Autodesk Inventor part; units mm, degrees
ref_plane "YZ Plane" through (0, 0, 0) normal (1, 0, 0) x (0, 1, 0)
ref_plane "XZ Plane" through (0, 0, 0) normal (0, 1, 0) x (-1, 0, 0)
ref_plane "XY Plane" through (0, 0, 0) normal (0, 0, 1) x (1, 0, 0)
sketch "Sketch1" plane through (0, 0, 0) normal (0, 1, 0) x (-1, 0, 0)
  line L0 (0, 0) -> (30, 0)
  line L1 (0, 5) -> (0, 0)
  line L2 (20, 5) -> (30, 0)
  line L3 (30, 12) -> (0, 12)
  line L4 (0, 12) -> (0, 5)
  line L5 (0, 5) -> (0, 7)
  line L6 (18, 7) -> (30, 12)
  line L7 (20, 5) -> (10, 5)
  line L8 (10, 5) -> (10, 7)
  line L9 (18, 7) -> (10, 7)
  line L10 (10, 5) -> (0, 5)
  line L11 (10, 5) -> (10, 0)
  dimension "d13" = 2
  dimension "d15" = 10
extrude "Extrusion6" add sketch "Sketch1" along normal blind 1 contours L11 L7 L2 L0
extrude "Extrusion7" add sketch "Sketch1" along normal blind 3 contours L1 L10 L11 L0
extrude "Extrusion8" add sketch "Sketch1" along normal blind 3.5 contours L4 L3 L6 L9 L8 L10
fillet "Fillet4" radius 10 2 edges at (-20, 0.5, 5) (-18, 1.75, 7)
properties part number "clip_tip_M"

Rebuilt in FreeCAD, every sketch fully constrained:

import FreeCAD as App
import Part
import Sketcher


def edges_at(feature, points):
    """Names of the edges that pass closest to the given points."""
    edges = feature.Shape.Edges
    near = lambda p: min(range(len(edges)), key=lambda i: edges[i].distToShape(Part.Vertex(*p))[0])
    return sorted({f"Edge{near(p) + 1}" for p in points})

doc = App.newDocument("Part")
body = doc.addObject("PartDesign::Body", "Body")

# Sketch on XZ plane
sketch1 = body.newObject("Sketcher::SketchObject", "Sketch")
sketch1.AttachmentSupport = (doc.getObject("XZ_Plane"), [""])
sketch1.MapMode = "FlatFace"
sketch1.addGeometry([
    Part.LineSegment(App.Vector(-10, 5, 0), App.Vector(-10, 0, 0)),
    Part.LineSegment(App.Vector(-10, 0, 0), App.Vector(-30, 0, 0)),
    Part.LineSegment(App.Vector(-30, 0, 0), App.Vector(-20, 5, 0)),
    Part.LineSegment(App.Vector(-20, 5, 0), App.Vector(-10, 5, 0)),
], False)
sketch1.addConstraint([
    Sketcher.Constraint("Coincident", 0, 2, 1, 1),
    Sketcher.Constraint("Coincident", 1, 2, 2, 1),
    Sketcher.Constraint("Coincident", 2, 2, 3, 1),
    Sketcher.Constraint("Coincident", 3, 2, 0, 1),
    Sketcher.Constraint("Vertical", 0),
    Sketcher.Constraint("Horizontal", 1),
    Sketcher.Constraint("Horizontal", 3),
    Sketcher.Constraint("PointOnObject", 0, 2, -1),
    Sketcher.Constraint("DistanceX", 3, 1, 3, 2, 10.0),
    Sketcher.Constraint("DistanceX", 0, 2, -1, 1, 10.0),
    Sketcher.Constraint("DistanceX", 1, 2, 2, 2, 10.0),
    Sketcher.Constraint("DistanceY", 0, 2, 0, 1, 5.0),
])
pad1 = body.newObject("PartDesign::Pad", "Pad")
pad1.Profile = sketch1
pad1.Length = 1
pad1.Reversed = True

# Sketch on XZ plane
sketch2 = body.newObject("Sketcher::SketchObject", "Sketch001")
sketch2.AttachmentSupport = (doc.getObject("XZ_Plane"), [""])
sketch2.MapMode = "FlatFace"
sketch2.addGeometry([
    Part.LineSegment(App.Vector(0, 5, 0), App.Vector(0, 0, 0)),
    Part.LineSegment(App.Vector(0, 0, 0), App.Vector(-10, 0, 0)),
    Part.LineSegment(App.Vector(-10, 0, 0), App.Vector(-10, 5, 0)),
    Part.LineSegment(App.Vector(-10, 5, 0), App.Vector(0, 5, 0)),
], False)
sketch2.addConstraint([
    Sketcher.Constraint("Coincident", 0, 2, 1, 1),
    Sketcher.Constraint("Coincident", 1, 2, 2, 1),
    Sketcher.Constraint("Coincident", 2, 2, 3, 1),
    Sketcher.Constraint("Coincident", 3, 2, 0, 1),
    Sketcher.Constraint("Vertical", 0),
    Sketcher.Constraint("Horizontal", 1),
    Sketcher.Constraint("Vertical", 2),
    Sketcher.Constraint("Horizontal", 3),
    Sketcher.Constraint("Coincident", 0, 2, -1, 1),
    Sketcher.Constraint("DistanceX", 1, 2, 1, 1, 10.0),
    Sketcher.Constraint("DistanceY", 0, 2, 0, 1, 5.0),
])
pad2 = body.newObject("PartDesign::Pad", "Pad001")
pad2.Profile = sketch2
pad2.Length = 3
pad2.Reversed = True

# Sketch on XZ plane
sketch3 = body.newObject("Sketcher::SketchObject", "Sketch002")
sketch3.AttachmentSupport = (doc.getObject("XZ_Plane"), [""])
sketch3.MapMode = "FlatFace"
sketch3.addGeometry([
    Part.LineSegment(App.Vector(0, 12, 0), App.Vector(0, 5, 0)),  # 0
    Part.LineSegment(App.Vector(0, 5, 0), App.Vector(-10, 5, 0)),  # 1
    Part.LineSegment(App.Vector(-10, 5, 0), App.Vector(-10, 7, 0)),  # 2
    Part.LineSegment(App.Vector(-10, 7, 0), App.Vector(-18, 7, 0)),  # 3
    Part.LineSegment(App.Vector(-18, 7, 0), App.Vector(-30, 12, 0)),  # 4
    Part.LineSegment(App.Vector(-30, 12, 0), App.Vector(0, 12, 0)),  # 5
], False)
sketch3.addConstraint([
    Sketcher.Constraint("Coincident", 0, 2, 1, 1),
    Sketcher.Constraint("Coincident", 1, 2, 2, 1),
    Sketcher.Constraint("Coincident", 2, 2, 3, 1),
    Sketcher.Constraint("Coincident", 3, 2, 4, 1),
    Sketcher.Constraint("Coincident", 4, 2, 5, 1),
    Sketcher.Constraint("Coincident", 5, 2, 0, 1),
    Sketcher.Constraint("Vertical", 0),
    Sketcher.Constraint("Horizontal", 1),
    Sketcher.Constraint("Vertical", 2),
    Sketcher.Constraint("Horizontal", 3),
    Sketcher.Constraint("Horizontal", 5),
    Sketcher.Constraint("PointOnObject", 0, 2, -2),
    Sketcher.Constraint("DistanceX", 1, 2, 1, 1, 10.0),
    Sketcher.Constraint("DistanceY", 2, 1, 2, 2, 2.0),
    Sketcher.Constraint("DistanceX", 3, 2, 3, 1, 8.0),
    Sketcher.Constraint("DistanceX", 5, 1, 5, 2, 30.0),
    Sketcher.Constraint("DistanceY", 0, 2, 0, 1, 7.0),
    Sketcher.Constraint("DistanceY", -1, 1, 0, 2, 5.0),
])
pad3 = body.newObject("PartDesign::Pad", "Pad002")
pad3.Profile = sketch3
pad3.Length = 3.5
pad3.Reversed = True
doc.recompute()

fillet = body.newObject("PartDesign::Fillet", "Fillet")
fillet.Base = (pad3, edges_at(pad3, [(-20, 0.5, 5), (-18, 1.75, 7)]))
fillet.Radius = 10

doc.recompute()
